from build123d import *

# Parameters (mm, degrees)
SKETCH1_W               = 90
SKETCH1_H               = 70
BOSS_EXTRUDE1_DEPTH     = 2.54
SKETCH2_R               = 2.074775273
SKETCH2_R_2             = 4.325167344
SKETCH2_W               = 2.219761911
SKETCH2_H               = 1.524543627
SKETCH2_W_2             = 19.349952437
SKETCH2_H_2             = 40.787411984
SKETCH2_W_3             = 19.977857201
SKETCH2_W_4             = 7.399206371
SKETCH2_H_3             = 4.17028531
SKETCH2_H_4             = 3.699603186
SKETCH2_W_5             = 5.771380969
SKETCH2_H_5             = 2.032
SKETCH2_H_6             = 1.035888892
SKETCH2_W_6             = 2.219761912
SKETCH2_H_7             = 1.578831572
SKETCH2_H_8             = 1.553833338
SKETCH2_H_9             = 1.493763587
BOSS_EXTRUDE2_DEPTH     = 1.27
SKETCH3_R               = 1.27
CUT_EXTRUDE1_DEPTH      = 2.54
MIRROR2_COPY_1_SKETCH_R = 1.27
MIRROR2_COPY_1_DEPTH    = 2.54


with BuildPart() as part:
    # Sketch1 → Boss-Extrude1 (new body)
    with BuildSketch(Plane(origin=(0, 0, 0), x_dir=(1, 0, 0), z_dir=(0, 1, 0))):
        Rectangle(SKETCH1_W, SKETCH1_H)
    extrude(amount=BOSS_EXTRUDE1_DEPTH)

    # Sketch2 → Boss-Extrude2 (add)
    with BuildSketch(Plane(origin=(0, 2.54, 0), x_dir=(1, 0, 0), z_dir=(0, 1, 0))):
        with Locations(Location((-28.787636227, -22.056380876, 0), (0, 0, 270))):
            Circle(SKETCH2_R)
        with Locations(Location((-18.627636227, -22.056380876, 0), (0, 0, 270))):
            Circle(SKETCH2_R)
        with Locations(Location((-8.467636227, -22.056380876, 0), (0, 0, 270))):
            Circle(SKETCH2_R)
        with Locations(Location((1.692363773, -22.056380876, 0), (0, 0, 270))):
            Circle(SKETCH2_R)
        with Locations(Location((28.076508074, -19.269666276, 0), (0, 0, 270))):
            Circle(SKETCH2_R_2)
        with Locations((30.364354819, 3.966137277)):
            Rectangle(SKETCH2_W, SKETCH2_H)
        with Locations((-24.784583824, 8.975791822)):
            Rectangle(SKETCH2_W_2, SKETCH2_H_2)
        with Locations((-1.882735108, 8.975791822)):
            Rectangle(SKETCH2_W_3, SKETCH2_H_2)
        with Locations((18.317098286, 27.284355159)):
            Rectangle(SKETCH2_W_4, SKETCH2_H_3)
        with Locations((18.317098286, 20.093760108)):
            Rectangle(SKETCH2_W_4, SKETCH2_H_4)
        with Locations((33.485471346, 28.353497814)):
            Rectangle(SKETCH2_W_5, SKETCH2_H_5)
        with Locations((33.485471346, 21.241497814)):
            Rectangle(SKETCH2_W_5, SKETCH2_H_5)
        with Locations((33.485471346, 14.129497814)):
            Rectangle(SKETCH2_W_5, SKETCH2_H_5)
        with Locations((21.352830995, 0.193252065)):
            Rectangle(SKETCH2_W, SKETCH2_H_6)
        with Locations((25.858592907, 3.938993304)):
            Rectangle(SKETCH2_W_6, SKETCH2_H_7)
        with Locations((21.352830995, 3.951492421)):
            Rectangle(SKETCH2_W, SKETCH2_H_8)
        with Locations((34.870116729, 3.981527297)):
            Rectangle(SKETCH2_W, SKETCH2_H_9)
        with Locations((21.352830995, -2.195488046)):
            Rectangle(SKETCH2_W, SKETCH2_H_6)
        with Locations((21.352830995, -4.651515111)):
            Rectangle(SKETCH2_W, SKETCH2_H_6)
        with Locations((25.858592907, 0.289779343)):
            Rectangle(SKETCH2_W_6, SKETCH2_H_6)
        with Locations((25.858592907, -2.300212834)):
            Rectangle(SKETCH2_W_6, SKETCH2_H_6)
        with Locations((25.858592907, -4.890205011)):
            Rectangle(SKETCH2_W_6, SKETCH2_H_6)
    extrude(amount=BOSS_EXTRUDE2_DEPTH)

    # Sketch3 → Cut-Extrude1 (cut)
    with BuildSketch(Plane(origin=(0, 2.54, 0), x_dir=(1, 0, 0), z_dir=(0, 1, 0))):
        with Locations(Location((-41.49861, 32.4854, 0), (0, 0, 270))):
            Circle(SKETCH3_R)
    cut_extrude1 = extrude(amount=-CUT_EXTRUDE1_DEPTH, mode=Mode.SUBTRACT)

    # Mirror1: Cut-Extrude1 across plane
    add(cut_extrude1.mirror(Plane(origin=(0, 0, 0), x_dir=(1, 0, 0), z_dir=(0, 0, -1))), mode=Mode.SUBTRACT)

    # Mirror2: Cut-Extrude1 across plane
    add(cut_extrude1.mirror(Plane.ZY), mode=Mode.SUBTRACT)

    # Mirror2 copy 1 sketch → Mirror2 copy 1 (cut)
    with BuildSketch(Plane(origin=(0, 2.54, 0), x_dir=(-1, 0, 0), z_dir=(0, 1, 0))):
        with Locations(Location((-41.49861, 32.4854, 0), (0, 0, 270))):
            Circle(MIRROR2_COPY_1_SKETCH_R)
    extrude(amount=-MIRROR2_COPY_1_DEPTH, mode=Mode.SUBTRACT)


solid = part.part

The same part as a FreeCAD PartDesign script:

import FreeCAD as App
import Part
import Sketcher
from FreeCAD import Vector
Q = App.Units.Quantity

doc = App.newDocument("Part")
body = doc.addObject("PartDesign::Body", "Body")

# Sketch on XZ plane
sketch1 = body.newObject("Sketcher::SketchObject", "Sketch")
sketch1.AttachmentSupport = (doc.getObject("XZ_Plane"), [""])
sketch1.MapMode = "FlatFace"
sketch1.addGeometry([
    Part.LineSegment(Vector(-45, -35, 0), Vector(-45, 35, 0)),
    Part.LineSegment(Vector(-45, 35, 0), Vector(45, 35, 0)),
    Part.LineSegment(Vector(45, 35, 0), Vector(45, -35, 0)),
    Part.LineSegment(Vector(45, -35, 0), Vector(-45, -35, 0)),
], False)
sketch1.addConstraint([
    Sketcher.Constraint("Coincident", 0, 2, 1, 1),
    Sketcher.Constraint("Coincident", 1, 2, 2, 1),
    Sketcher.Constraint("Coincident", 2, 2, 3, 1),
    Sketcher.Constraint("Coincident", 3, 2, 0, 1),
    Sketcher.Constraint("Vertical", 0),
    Sketcher.Constraint("Horizontal", 1),
    Sketcher.Constraint("Vertical", 2),
    Sketcher.Constraint("Horizontal", 3),
    Sketcher.Constraint("Symmetric", 0, 2, 2, 2, -1, 1),
    Sketcher.Constraint("DistanceX", 1, 1, 1, 2, 90.0),
    Sketcher.Constraint("DistanceY", 0, 1, 0, 2, 70.0),
])
pad1 = body.newObject("PartDesign::Pad", "Pad")
pad1.Profile = sketch1
pad1.Length = Q("0.1 in")
pad1.Reversed = True

# Sketch on XZ plane
sketch2 = body.newObject("Sketcher::SketchObject", "Sketch001")
sketch2.AttachmentSupport = (doc.getObject("XZ_Plane"), [""])
sketch2.MapMode = "FlatFace"
sketch2.AttachmentOffset = App.Placement(Vector(0, 0, -0.1 * 25.4), App.Rotation())
sketch2.addGeometry([
    Part.Circle(Vector(-28.8, 22.1, 0), Vector(0, 0, 1), 2.1),  # 0
    Part.Circle(Vector(-18.6, 22.1, 0), Vector(0, 0, 1), 2.1),  # 1
    Part.Circle(Vector(-8.5, 22.1, 0), Vector(0, 0, 1), 2.1),  # 2
    Part.Circle(Vector(1.7, 22.1, 0), Vector(0, 0, 1), 2.1),  # 3
    Part.Circle(Vector(28.1, 19.3, 0), Vector(0, 0, 1), 4.3),  # 4
    Part.LineSegment(Vector(29.3, -4.7, 0), Vector(29.3, -3.2, 0)),  # 5
    Part.LineSegment(Vector(29.3, -3.2, 0), Vector(31.5, -3.2, 0)),  # 6
    Part.LineSegment(Vector(31.5, -3.2, 0), Vector(31.5, -4.7, 0)),  # 7
    Part.LineSegment(Vector(31.5, -4.7, 0), Vector(29.3, -4.7, 0)),  # 8
    Part.LineSegment(Vector(-34.5, -29.4, 0), Vector(-34.5, 11.4, 0)),  # 9
    Part.LineSegment(Vector(-34.5, 11.4, 0), Vector(-15.1, 11.4, 0)),  # 10
    Part.LineSegment(Vector(-15.1, 11.4, 0), Vector(-15.1, -29.4, 0)),  # 11
    Part.LineSegment(Vector(-15.1, -29.4, 0), Vector(-34.5, -29.4, 0)),  # 12
    Part.LineSegment(Vector(-11.9, -29.4, 0), Vector(-11.9, 11.4, 0)),  # 13
    Part.LineSegment(Vector(-11.9, 11.4, 0), Vector(8.1, 11.4, 0)),  # 14
    Part.LineSegment(Vector(8.1, 11.4, 0), Vector(8.1, -29.4, 0)),  # 15
    Part.LineSegment(Vector(8.1, -29.4, 0), Vector(-11.9, -29.4, 0)),  # 16
    Part.LineSegment(Vector(14.6, -29.4, 0), Vector(14.6, -25.2, 0)),  # 17
    Part.LineSegment(Vector(14.6, -25.2, 0), Vector(22, -25.2, 0)),  # 18
    Part.LineSegment(Vector(22, -25.2, 0), Vector(22, -29.4, 0)),  # 19
    Part.LineSegment(Vector(22, -29.4, 0), Vector(14.6, -29.4, 0)),  # 20
    Part.LineSegment(Vector(14.6, -21.9, 0), Vector(14.6, -18.2, 0)),  # 21
    Part.LineSegment(Vector(14.6, -18.2, 0), Vector(22, -18.2, 0)),  # 22
    Part.LineSegment(Vector(22, -18.2, 0), Vector(22, -21.9, 0)),  # 23
    Part.LineSegment(Vector(22, -21.9, 0), Vector(14.6, -21.9, 0)),  # 24
    Part.LineSegment(Vector(30.6, -29.4, 0), Vector(30.6, -27.3, 0)),  # 25
    Part.LineSegment(Vector(30.6, -27.3, 0), Vector(36.4, -27.3, 0)),  # 26
    Part.LineSegment(Vector(36.4, -27.3, 0), Vector(36.4, -29.4, 0)),  # 27
    Part.LineSegment(Vector(36.4, -29.4, 0), Vector(30.6, -29.4, 0)),  # 28
    Part.LineSegment(Vector(30.6, -22.3, 0), Vector(30.6, -20.2, 0)),  # 29
    Part.LineSegment(Vector(30.6, -20.2, 0), Vector(36.4, -20.2, 0)),  # 30
    Part.LineSegment(Vector(36.4, -20.2, 0), Vector(36.4, -22.3, 0)),  # 31
    Part.LineSegment(Vector(36.4, -22.3, 0), Vector(30.6, -22.3, 0)),  # 32
    Part.LineSegment(Vector(30.6, -15.1, 0), Vector(30.6, -13.1, 0)),  # 33
    Part.LineSegment(Vector(30.6, -13.1, 0), Vector(36.4, -13.1, 0)),  # 34
    Part.LineSegment(Vector(36.4, -13.1, 0), Vector(36.4, -15.1, 0)),  # 35
    Part.LineSegment(Vector(36.4, -15.1, 0), Vector(30.6, -15.1, 0)),  # 36
    Part.LineSegment(Vector(20.2, -0.7, 0), Vector(20.2, 0.3, 0)),  # 37
    Part.LineSegment(Vector(20.2, 0.3, 0), Vector(22.5, 0.3, 0)),  # 38
    Part.LineSegment(Vector(22.5, 0.3, 0), Vector(22.5, -0.7, 0)),  # 39
    Part.LineSegment(Vector(22.5, -0.7, 0), Vector(20.2, -0.7, 0)),  # 40
    Part.LineSegment(Vector(24.7, -4.7, 0), Vector(24.7, -3.1, 0)),  # 41
    Part.LineSegment(Vector(24.7, -3.1, 0), Vector(27, -3.1, 0)),  # 42
    Part.LineSegment(Vector(27, -3.1, 0), Vector(27, -4.7, 0)),  # 43
    Part.LineSegment(Vector(27, -4.7, 0), Vector(24.7, -4.7, 0)),  # 44
    Part.LineSegment(Vector(20.2, -4.7, 0), Vector(20.2, -3.2, 0)),  # 45
    Part.LineSegment(Vector(20.2, -3.2, 0), Vector(22.5, -3.2, 0)),  # 46
    Part.LineSegment(Vector(22.5, -3.2, 0), Vector(22.5, -4.7, 0)),  # 47
    Part.LineSegment(Vector(22.5, -4.7, 0), Vector(20.2, -4.7, 0)),  # 48
    Part.LineSegment(Vector(33.8, -4.7, 0), Vector(33.8, -3.2, 0)),  # 49
    Part.LineSegment(Vector(33.8, -3.2, 0), Vector(36, -3.2, 0)),  # 50
    Part.LineSegment(Vector(36, -3.2, 0), Vector(36, -4.7, 0)),  # 51
    Part.LineSegment(Vector(36, -4.7, 0), Vector(33.8, -4.7, 0)),  # 52
    Part.LineSegment(Vector(20.2, 1.7, 0), Vector(20.2, 2.7, 0)),  # 53
    Part.LineSegment(Vector(20.2, 2.7, 0), Vector(22.5, 2.7, 0)),  # 54
    Part.LineSegment(Vector(22.5, 2.7, 0), Vector(22.5, 1.7, 0)),  # 55
    Part.LineSegment(Vector(22.5, 1.7, 0), Vector(20.2, 1.7, 0)),  # 56
    Part.LineSegment(Vector(20.2, 4.1, 0), Vector(20.2, 5.2, 0)),  # 57
    Part.LineSegment(Vector(20.2, 5.2, 0), Vector(22.5, 5.2, 0)),  # 58
    Part.LineSegment(Vector(22.5, 5.2, 0), Vector(22.5, 4.1, 0)),  # 59
    Part.LineSegment(Vector(22.5, 4.1, 0), Vector(20.2, 4.1, 0)),  # 60
    Part.LineSegment(Vector(24.7, -0.8, 0), Vector(24.7, 0.2, 0)),  # 61
    Part.LineSegment(Vector(24.7, 0.2, 0), Vector(27, 0.2, 0)),  # 62
    Part.LineSegment(Vector(27, 0.2, 0), Vector(27, -0.8, 0)),  # 63
    Part.LineSegment(Vector(27, -0.8, 0), Vector(24.7, -0.8, 0)),  # 64
    Part.LineSegment(Vector(24.7, 1.8, 0), Vector(24.7, 2.8, 0)),  # 65
    Part.LineSegment(Vector(24.7, 2.8, 0), Vector(27, 2.8, 0)),  # 66
    Part.LineSegment(Vector(27, 2.8, 0), Vector(27, 1.8, 0)),  # 67
    Part.LineSegment(Vector(27, 1.8, 0), Vector(24.7, 1.8, 0)),  # 68
    Part.LineSegment(Vector(24.7, 4.4, 0), Vector(24.7, 5.4, 0)),  # 69
    Part.LineSegment(Vector(24.7, 5.4, 0), Vector(27, 5.4, 0)),  # 70
    Part.LineSegment(Vector(27, 5.4, 0), Vector(27, 4.4, 0)),  # 71
    Part.LineSegment(Vector(27, 4.4, 0), Vector(24.7, 4.4, 0)),  # 72
], False)
sketch2.addConstraint([
    Sketcher.Constraint("Coincident", 5, 2, 6, 1),
    Sketcher.Constraint("Coincident", 6, 2, 7, 1),
    Sketcher.Constraint("Coincident", 7, 2, 8, 1),
    Sketcher.Constraint("Coincident", 8, 2, 5, 1),
    Sketcher.Constraint("Coincident", 9, 2, 10, 1),
    Sketcher.Constraint("Coincident", 10, 2, 11, 1),
    Sketcher.Constraint("Coincident", 11, 2, 12, 1),
    Sketcher.Constraint("Coincident", 12, 2, 9, 1),
    Sketcher.Constraint("Coincident", 13, 2, 14, 1),
    Sketcher.Constraint("Coincident", 14, 2, 15, 1),
    Sketcher.Constraint("Coincident", 15, 2, 16, 1),
    Sketcher.Constraint("Coincident", 16, 2, 13, 1),
    Sketcher.Constraint("Coincident", 17, 2, 18, 1),
    Sketcher.Constraint("Coincident", 18, 2, 19, 1),
    Sketcher.Constraint("Coincident", 19, 2, 20, 1),
    Sketcher.Constraint("Coincident", 20, 2, 17, 1),
    Sketcher.Constraint("Coincident", 21, 2, 22, 1),
    Sketcher.Constraint("Coincident", 22, 2, 23, 1),
    Sketcher.Constraint("Coincident", 23, 2, 24, 1),
    Sketcher.Constraint("Coincident", 24, 2, 21, 1),
    Sketcher.Constraint("Coincident", 25, 2, 26, 1),
    Sketcher.Constraint("Coincident", 26, 2, 27, 1),
    Sketcher.Constraint("Coincident", 27, 2, 28, 1),
    Sketcher.Constraint("Coincident", 28, 2, 25, 1),
    Sketcher.Constraint("Coincident", 29, 2, 30, 1),
    Sketcher.Constraint("Coincident", 30, 2, 31, 1),
    Sketcher.Constraint("Coincident", 31, 2, 32, 1),
    Sketcher.Constraint("Coincident", 32, 2, 29, 1),
    Sketcher.Constraint("Coincident", 33, 2, 34, 1),
    Sketcher.Constraint("Coincident", 34, 2, 35, 1),
    Sketcher.Constraint("Coincident", 35, 2, 36, 1),
    Sketcher.Constraint("Coincident", 36, 2, 33, 1),
    Sketcher.Constraint("Coincident", 37, 2, 38, 1),
    Sketcher.Constraint("Coincident", 38, 2, 39, 1),
    Sketcher.Constraint("Coincident", 39, 2, 40, 1),
    Sketcher.Constraint("Coincident", 40, 2, 37, 1),
    Sketcher.Constraint("Coincident", 41, 2, 42, 1),
    Sketcher.Constraint("Coincident", 42, 2, 43, 1),
    Sketcher.Constraint("Coincident", 43, 2, 44, 1),
    Sketcher.Constraint("Coincident", 44, 2, 41, 1),
    Sketcher.Constraint("Coincident", 45, 2, 46, 1),
    Sketcher.Constraint("Coincident", 46, 2, 47, 1),
    Sketcher.Constraint("Coincident", 47, 2, 48, 1),
    Sketcher.Constraint("Coincident", 48, 2, 45, 1),
    Sketcher.Constraint("Coincident", 49, 2, 50, 1),
    Sketcher.Constraint("Coincident", 50, 2, 51, 1),
    Sketcher.Constraint("Coincident", 51, 2, 52, 1),
    Sketcher.Constraint("Coincident", 52, 2, 49, 1),
    Sketcher.Constraint("Coincident", 53, 2, 54, 1),
    Sketcher.Constraint("Coincident", 54, 2, 55, 1),
    Sketcher.Constraint("Coincident", 55, 2, 56, 1),
    Sketcher.Constraint("Coincident", 56, 2, 53, 1),
    Sketcher.Constraint("Coincident", 57, 2, 58, 1),
    Sketcher.Constraint("Coincident", 58, 2, 59, 1),
    Sketcher.Constraint("Coincident", 59, 2, 60, 1),
    Sketcher.Constraint("Coincident", 60, 2, 57, 1),
    Sketcher.Constraint("Coincident", 61, 2, 62, 1),
    Sketcher.Constraint("Coincident", 62, 2, 63, 1),
    Sketcher.Constraint("Coincident", 63, 2, 64, 1),
    Sketcher.Constraint("Coincident", 64, 2, 61, 1),
    Sketcher.Constraint("Coincident", 65, 2, 66, 1),
    Sketcher.Constraint("Coincident", 66, 2, 67, 1),
    Sketcher.Constraint("Coincident", 67, 2, 68, 1),
    Sketcher.Constraint("Coincident", 68, 2, 65, 1),
    Sketcher.Constraint("Coincident", 69, 2, 70, 1),
    Sketcher.Constraint("Coincident", 70, 2, 71, 1),
    Sketcher.Constraint("Coincident", 71, 2, 72, 1),
    Sketcher.Constraint("Coincident", 72, 2, 69, 1),
    Sketcher.Constraint("Vertical", 5),
    Sketcher.Constraint("Horizontal", 6),
    Sketcher.Constraint("Vertical", 7),
    Sketcher.Constraint("Horizontal", 8),
    Sketcher.Constraint("Vertical", 9),
    Sketcher.Constraint("Horizontal", 10),
    Sketcher.Constraint("Vertical", 11),
    Sketcher.Constraint("Horizontal", 12),
    Sketcher.Constraint("Vertical", 13),
    Sketcher.Constraint("Horizontal", 14),
    Sketcher.Constraint("Vertical", 15),
    Sketcher.Constraint("Horizontal", 16),
    Sketcher.Constraint("Vertical", 17),
    Sketcher.Constraint("Horizontal", 18),
    Sketcher.Constraint("Vertical", 19),
    Sketcher.Constraint("Horizontal", 20),
    Sketcher.Constraint("Vertical", 21),
    Sketcher.Constraint("Horizontal", 22),
    Sketcher.Constraint("Vertical", 23),
    Sketcher.Constraint("Horizontal", 24),
    Sketcher.Constraint("Vertical", 25),
    Sketcher.Constraint("Horizontal", 26),
    Sketcher.Constraint("Vertical", 27),
    Sketcher.Constraint("Horizontal", 28),
    Sketcher.Constraint("Vertical", 29),
    Sketcher.Constraint("Horizontal", 30),
    Sketcher.Constraint("Vertical", 31),
    Sketcher.Constraint("Horizontal", 32),
    Sketcher.Constraint("Vertical", 33),
    Sketcher.Constraint("Horizontal", 34),
    Sketcher.Constraint("Vertical", 35),
    Sketcher.Constraint("Horizontal", 36),
    Sketcher.Constraint("Vertical", 37),
    Sketcher.Constraint("Horizontal", 38),
    Sketcher.Constraint("Vertical", 39),
    Sketcher.Constraint("Horizontal", 40),
    Sketcher.Constraint("Vertical", 41),
    Sketcher.Constraint("Horizontal", 42),
    Sketcher.Constraint("Vertical", 43),
    Sketcher.Constraint("Horizontal", 44),
    Sketcher.Constraint("Vertical", 45),
    Sketcher.Constraint("Horizontal", 46),
    Sketcher.Constraint("Vertical", 47),
    Sketcher.Constraint("Horizontal", 48),
    Sketcher.Constraint("Vertical", 49),
    Sketcher.Constraint("Horizontal", 50),
    Sketcher.Constraint("Vertical", 51),
    Sketcher.Constraint("Horizontal", 52),
    Sketcher.Constraint("Vertical", 53),
    Sketcher.Constraint("Horizontal", 54),
    Sketcher.Constraint("Vertical", 55),
    Sketcher.Constraint("Horizontal", 56),
    Sketcher.Constraint("Vertical", 57),
    Sketcher.Constraint("Horizontal", 58),
    Sketcher.Constraint("Vertical", 59),
    Sketcher.Constraint("Horizontal", 60),
    Sketcher.Constraint("Vertical", 61),
    Sketcher.Constraint("Horizontal", 62),
    Sketcher.Constraint("Vertical", 63),
    Sketcher.Constraint("Horizontal", 64),
    Sketcher.Constraint("Vertical", 65),
    Sketcher.Constraint("Horizontal", 66),
    Sketcher.Constraint("Vertical", 67),
    Sketcher.Constraint("Horizontal", 68),
    Sketcher.Constraint("Vertical", 69),
    Sketcher.Constraint("Horizontal", 70),
    Sketcher.Constraint("Vertical", 71),
    Sketcher.Constraint("Horizontal", 72),
    Sketcher.Constraint("Equal", 0, 1),
    Sketcher.Constraint("Equal", 1, 2),
    Sketcher.Constraint("Equal", 2, 3),
    Sketcher.Constraint("Horizontal", 0, 3, 1, 3),
    Sketcher.Constraint("Horizontal", 1, 3, 2, 3),
    Sketcher.Constraint("Horizontal", 2, 3, 3, 3),
    Sketcher.Constraint("Horizontal", 10, 2, 13, 2),
    Sketcher.Constraint("Horizontal", 12, 2, 15, 2),
    Sketcher.Constraint("Horizontal", 16, 2, 19, 2),
    Sketcher.Constraint("Horizontal", 20, 2, 27, 2),
    Sketcher.Constraint("Horizontal", 8, 2, 43, 2),
    Sketcher.Constraint("Horizontal", 44, 2, 47, 2),
    Sketcher.Constraint("Horizontal", 48, 2, 51, 2),
    Sketcher.Constraint("Vertical", 20, 2, 21, 2),
    Sketcher.Constraint("Vertical", 19, 2, 22, 2),
    Sketcher.Constraint("Vertical", 28, 2, 29, 2),
    Sketcher.Constraint("Vertical", 27, 2, 30, 2),
    Sketcher.Constraint("Vertical", 32, 2, 33, 2),
    Sketcher.Constraint("Vertical", 31, 2, 34, 2),
    Sketcher.Constraint("Vertical", 40, 2, 45, 2),
    Sketcher.Constraint("Vertical", 39, 2, 46, 2),
    Sketcher.Constraint("Vertical", 48, 2, 53, 2),
    Sketcher.Constraint("Vertical", 47, 2, 54, 2),
    Sketcher.Constraint("Vertical", 56, 2, 57, 2),
    Sketcher.Constraint("Vertical", 55, 2, 58, 2),
    Sketcher.Constraint("Vertical", 44, 2, 61, 2),
    Sketcher.Constraint("Vertical", 43, 2, 62, 2),
    Sketcher.Constraint("Vertical", 64, 2, 65, 2),
    Sketcher.Constraint("Vertical", 63, 2, 66, 2),
    Sketcher.Constraint("Vertical", 68, 2, 69, 2),
    Sketcher.Constraint("Vertical", 67, 2, 70, 2),
    Sketcher.Constraint("Equal", 8, 38),
    Sketcher.Constraint("Equal", 40, 42),
    Sketcher.Constraint("Equal", 48, 50),
    Sketcher.Constraint("Equal", 27, 29),
    Sketcher.Constraint("Equal", 31, 33),
    Sketcher.Constraint("Equal", 39, 53),
    Sketcher.Constraint("Equal", 55, 57),
    Sketcher.Constraint("Equal", 59, 61),
    Sketcher.Constraint("Equal", 63, 65),
    Sketcher.Constraint("Equal", 67, 69),
    Sketcher.Constraint("DistanceY", 25, 1, 25, 2, Q("0.08 in")),
    Sketcher.Constraint("Diameter", 0, 4.149551),
    Sketcher.Constraint("DistanceY", 39, 2, -1, 1, Q("0.0279999 in")),
    Sketcher.Constraint("Diameter", 4, 8.650335),
    Sketcher.Constraint("DistanceY", 63, 2, -1, 1, Q("0.0318001 in")),
    Sketcher.Constraint("DistanceX", 6, 1, 6, 2, 2.219762),
    Sketcher.Constraint("DistanceX", 26, 1, 26, 2, 5.771381),
    Sketcher.Constraint("DistanceY", 9, 1, 9, 2, 40.787412),
    Sketcher.Constraint("DistanceY", 37, 1, 37, 2, 1.035889),
    Sketcher.Constraint("DistanceY", 41, 1, 41, 2, 1.578832),
    Sketcher.Constraint("DistanceX", -1, 1, 18, 2, 22.016701),
    Sketcher.Constraint("DistanceX", 10, 1, 10, 2, 19.349952),
    Sketcher.Constraint("DistanceX", 14, 1, 14, 2, 19.977857),
    Sketcher.Constraint("DistanceX", 18, 1, 18, 2, 7.399206),
    Sketcher.Constraint("DistanceY", 5, 1, 5, 2, 1.524544),
    Sketcher.Constraint("DistanceY", 17, 1, 17, 2, 4.170285),
    Sketcher.Constraint("DistanceY", 21, 1, 21, 2, 3.699603),
    Sketcher.Constraint("DistanceY", 45, 1, 45, 2, 1.553833),
    Sketcher.Constraint("DistanceY", 49, 1, 49, 2, 1.493764),
    Sketcher.Constraint("DistanceY", -1, 1, 0, 3, 22.056381),
    Sketcher.Constraint("DistanceX", -1, 1, 4, 3, 28.076508),
    Sketcher.Constraint("DistanceY", 7, 2, -1, 1, 4.728409),
    Sketcher.Constraint("DistanceX", 9, 2, -1, 1, 34.45956),
    Sketcher.Constraint("DistanceY", 21, 2, -1, 1, 18.243959),
    Sketcher.Constraint("DistanceX", -1, 1, 25, 2, 30.599781),
    Sketcher.Constraint("DistanceX", -1, 1, 37, 2, 20.24295),
    Sketcher.Constraint("DistanceX", -1, 1, 41, 2, 24.748712),
    Sketcher.Constraint("DistanceY", -1, 1, 57, 2, 5.16946),
    Sketcher.Constraint("DistanceY", -1, 1, 67, 2, 1.782268),
    Sketcher.Constraint("DistanceY", -1, 1, 69, 2, 5.408149),
    Sketcher.Constraint("DistanceX", 0, 3, -1, 1, 28.787636),
    Sketcher.Constraint("DistanceX", 1, 3, -1, 1, 18.627636),
    Sketcher.Constraint("DistanceX", 2, 3, -1, 1, 8.467636),
    Sketcher.Constraint("DistanceX", -1, 1, 3, 3, 1.692364),
    Sketcher.Constraint("DistanceY", -1, 1, 4, 3, 19.269666),
    Sketcher.Constraint("DistanceX", -1, 1, 5, 2, 29.254474),
    Sketcher.Constraint("DistanceY", -1, 1, 9, 2, 11.417914),
    Sketcher.Constraint("DistanceX", 13, 2, -1, 1, 11.871664),
    Sketcher.Constraint("DistanceY", 29, 2, -1, 1, 20.225498),
    Sketcher.Constraint("DistanceY", 33, 2, -1, 1, 13.113498),
    Sketcher.Constraint("DistanceX", -1, 1, 49, 2, 33.760236),
    Sketcher.Constraint("DistanceY", -1, 1, 53, 2, 2.713432),
])
pad2 = body.newObject("PartDesign::Pad", "Pad001")
pad2.Profile = sketch2
pad2.Length = Q("0.05 in")
pad2.Reversed = True

# Sketch on XZ plane
sketch3 = body.newObject("Sketcher::SketchObject", "Sketch002")
sketch3.AttachmentSupport = (doc.getObject("XZ_Plane"), [""])
sketch3.MapMode = "FlatFace"
sketch3.AttachmentOffset = App.Placement(Vector(0, 0, -0.1 * 25.4), App.Rotation())
sketch3.addGeometry(Part.Circle(Vector(-41.5, -32.5, 0), Vector(0, 0, 1), 1.3), False)
sketch3.addConstraint([
    Sketcher.Constraint("Diameter", 0, Q("0.1 in")),
    Sketcher.Constraint("DistanceY", 0, 3, -1, 1, 32.4854),
    Sketcher.Constraint("DistanceX", 0, 3, -1, 1, 41.49861),
])
pocket1 = body.newObject("PartDesign::Pocket", "Pocket")
pocket1.Profile = sketch3
pocket1.Length = Q("0.1 in")
pocket1.Reversed = True
doc.recompute()

mirrored = body.newObject("PartDesign::Mirrored", "Mirrored")
mirrored.Originals = [pocket1]
mirrored.MirrorPlane = (doc.getObject("XY_Plane"), [""])
body.Tip = mirrored
doc.recompute()

mirrored2 = body.newObject("PartDesign::Mirrored", "Mirrored001")
mirrored2.Originals = [pocket1]
mirrored2.MirrorPlane = (doc.getObject("YZ_Plane"), [""])
body.Tip = mirrored2

# Sketch on XZ plane
sketch4 = body.newObject("Sketcher::SketchObject", "Sketch003")
sketch4.AttachmentSupport = (doc.getObject("XZ_Plane"), [""])
sketch4.MapMode = "FlatFace"
sketch4.AttachmentOffset = App.Placement(Vector(0, 0, -0.1 * 25.4), App.Rotation())
sketch4.addGeometry(Part.Circle(Vector(41.5, 32.5, 0), Vector(0, 0, 1), 1.3), False)
sketch4.addConstraint([
    Sketcher.Constraint("Diameter", 0, Q("0.1 in")),
    Sketcher.Constraint("DistanceY", -1, 1, 0, 3, 32.4854),
    Sketcher.Constraint("DistanceX", -1, 1, 0, 3, 41.49861),
])
pocket2 = body.newObject("PartDesign::Pocket", "Pocket001")
pocket2.Profile = sketch4
pocket2.Length = Q("0.1 in")
pocket2.Reversed = True

doc.recompute()
